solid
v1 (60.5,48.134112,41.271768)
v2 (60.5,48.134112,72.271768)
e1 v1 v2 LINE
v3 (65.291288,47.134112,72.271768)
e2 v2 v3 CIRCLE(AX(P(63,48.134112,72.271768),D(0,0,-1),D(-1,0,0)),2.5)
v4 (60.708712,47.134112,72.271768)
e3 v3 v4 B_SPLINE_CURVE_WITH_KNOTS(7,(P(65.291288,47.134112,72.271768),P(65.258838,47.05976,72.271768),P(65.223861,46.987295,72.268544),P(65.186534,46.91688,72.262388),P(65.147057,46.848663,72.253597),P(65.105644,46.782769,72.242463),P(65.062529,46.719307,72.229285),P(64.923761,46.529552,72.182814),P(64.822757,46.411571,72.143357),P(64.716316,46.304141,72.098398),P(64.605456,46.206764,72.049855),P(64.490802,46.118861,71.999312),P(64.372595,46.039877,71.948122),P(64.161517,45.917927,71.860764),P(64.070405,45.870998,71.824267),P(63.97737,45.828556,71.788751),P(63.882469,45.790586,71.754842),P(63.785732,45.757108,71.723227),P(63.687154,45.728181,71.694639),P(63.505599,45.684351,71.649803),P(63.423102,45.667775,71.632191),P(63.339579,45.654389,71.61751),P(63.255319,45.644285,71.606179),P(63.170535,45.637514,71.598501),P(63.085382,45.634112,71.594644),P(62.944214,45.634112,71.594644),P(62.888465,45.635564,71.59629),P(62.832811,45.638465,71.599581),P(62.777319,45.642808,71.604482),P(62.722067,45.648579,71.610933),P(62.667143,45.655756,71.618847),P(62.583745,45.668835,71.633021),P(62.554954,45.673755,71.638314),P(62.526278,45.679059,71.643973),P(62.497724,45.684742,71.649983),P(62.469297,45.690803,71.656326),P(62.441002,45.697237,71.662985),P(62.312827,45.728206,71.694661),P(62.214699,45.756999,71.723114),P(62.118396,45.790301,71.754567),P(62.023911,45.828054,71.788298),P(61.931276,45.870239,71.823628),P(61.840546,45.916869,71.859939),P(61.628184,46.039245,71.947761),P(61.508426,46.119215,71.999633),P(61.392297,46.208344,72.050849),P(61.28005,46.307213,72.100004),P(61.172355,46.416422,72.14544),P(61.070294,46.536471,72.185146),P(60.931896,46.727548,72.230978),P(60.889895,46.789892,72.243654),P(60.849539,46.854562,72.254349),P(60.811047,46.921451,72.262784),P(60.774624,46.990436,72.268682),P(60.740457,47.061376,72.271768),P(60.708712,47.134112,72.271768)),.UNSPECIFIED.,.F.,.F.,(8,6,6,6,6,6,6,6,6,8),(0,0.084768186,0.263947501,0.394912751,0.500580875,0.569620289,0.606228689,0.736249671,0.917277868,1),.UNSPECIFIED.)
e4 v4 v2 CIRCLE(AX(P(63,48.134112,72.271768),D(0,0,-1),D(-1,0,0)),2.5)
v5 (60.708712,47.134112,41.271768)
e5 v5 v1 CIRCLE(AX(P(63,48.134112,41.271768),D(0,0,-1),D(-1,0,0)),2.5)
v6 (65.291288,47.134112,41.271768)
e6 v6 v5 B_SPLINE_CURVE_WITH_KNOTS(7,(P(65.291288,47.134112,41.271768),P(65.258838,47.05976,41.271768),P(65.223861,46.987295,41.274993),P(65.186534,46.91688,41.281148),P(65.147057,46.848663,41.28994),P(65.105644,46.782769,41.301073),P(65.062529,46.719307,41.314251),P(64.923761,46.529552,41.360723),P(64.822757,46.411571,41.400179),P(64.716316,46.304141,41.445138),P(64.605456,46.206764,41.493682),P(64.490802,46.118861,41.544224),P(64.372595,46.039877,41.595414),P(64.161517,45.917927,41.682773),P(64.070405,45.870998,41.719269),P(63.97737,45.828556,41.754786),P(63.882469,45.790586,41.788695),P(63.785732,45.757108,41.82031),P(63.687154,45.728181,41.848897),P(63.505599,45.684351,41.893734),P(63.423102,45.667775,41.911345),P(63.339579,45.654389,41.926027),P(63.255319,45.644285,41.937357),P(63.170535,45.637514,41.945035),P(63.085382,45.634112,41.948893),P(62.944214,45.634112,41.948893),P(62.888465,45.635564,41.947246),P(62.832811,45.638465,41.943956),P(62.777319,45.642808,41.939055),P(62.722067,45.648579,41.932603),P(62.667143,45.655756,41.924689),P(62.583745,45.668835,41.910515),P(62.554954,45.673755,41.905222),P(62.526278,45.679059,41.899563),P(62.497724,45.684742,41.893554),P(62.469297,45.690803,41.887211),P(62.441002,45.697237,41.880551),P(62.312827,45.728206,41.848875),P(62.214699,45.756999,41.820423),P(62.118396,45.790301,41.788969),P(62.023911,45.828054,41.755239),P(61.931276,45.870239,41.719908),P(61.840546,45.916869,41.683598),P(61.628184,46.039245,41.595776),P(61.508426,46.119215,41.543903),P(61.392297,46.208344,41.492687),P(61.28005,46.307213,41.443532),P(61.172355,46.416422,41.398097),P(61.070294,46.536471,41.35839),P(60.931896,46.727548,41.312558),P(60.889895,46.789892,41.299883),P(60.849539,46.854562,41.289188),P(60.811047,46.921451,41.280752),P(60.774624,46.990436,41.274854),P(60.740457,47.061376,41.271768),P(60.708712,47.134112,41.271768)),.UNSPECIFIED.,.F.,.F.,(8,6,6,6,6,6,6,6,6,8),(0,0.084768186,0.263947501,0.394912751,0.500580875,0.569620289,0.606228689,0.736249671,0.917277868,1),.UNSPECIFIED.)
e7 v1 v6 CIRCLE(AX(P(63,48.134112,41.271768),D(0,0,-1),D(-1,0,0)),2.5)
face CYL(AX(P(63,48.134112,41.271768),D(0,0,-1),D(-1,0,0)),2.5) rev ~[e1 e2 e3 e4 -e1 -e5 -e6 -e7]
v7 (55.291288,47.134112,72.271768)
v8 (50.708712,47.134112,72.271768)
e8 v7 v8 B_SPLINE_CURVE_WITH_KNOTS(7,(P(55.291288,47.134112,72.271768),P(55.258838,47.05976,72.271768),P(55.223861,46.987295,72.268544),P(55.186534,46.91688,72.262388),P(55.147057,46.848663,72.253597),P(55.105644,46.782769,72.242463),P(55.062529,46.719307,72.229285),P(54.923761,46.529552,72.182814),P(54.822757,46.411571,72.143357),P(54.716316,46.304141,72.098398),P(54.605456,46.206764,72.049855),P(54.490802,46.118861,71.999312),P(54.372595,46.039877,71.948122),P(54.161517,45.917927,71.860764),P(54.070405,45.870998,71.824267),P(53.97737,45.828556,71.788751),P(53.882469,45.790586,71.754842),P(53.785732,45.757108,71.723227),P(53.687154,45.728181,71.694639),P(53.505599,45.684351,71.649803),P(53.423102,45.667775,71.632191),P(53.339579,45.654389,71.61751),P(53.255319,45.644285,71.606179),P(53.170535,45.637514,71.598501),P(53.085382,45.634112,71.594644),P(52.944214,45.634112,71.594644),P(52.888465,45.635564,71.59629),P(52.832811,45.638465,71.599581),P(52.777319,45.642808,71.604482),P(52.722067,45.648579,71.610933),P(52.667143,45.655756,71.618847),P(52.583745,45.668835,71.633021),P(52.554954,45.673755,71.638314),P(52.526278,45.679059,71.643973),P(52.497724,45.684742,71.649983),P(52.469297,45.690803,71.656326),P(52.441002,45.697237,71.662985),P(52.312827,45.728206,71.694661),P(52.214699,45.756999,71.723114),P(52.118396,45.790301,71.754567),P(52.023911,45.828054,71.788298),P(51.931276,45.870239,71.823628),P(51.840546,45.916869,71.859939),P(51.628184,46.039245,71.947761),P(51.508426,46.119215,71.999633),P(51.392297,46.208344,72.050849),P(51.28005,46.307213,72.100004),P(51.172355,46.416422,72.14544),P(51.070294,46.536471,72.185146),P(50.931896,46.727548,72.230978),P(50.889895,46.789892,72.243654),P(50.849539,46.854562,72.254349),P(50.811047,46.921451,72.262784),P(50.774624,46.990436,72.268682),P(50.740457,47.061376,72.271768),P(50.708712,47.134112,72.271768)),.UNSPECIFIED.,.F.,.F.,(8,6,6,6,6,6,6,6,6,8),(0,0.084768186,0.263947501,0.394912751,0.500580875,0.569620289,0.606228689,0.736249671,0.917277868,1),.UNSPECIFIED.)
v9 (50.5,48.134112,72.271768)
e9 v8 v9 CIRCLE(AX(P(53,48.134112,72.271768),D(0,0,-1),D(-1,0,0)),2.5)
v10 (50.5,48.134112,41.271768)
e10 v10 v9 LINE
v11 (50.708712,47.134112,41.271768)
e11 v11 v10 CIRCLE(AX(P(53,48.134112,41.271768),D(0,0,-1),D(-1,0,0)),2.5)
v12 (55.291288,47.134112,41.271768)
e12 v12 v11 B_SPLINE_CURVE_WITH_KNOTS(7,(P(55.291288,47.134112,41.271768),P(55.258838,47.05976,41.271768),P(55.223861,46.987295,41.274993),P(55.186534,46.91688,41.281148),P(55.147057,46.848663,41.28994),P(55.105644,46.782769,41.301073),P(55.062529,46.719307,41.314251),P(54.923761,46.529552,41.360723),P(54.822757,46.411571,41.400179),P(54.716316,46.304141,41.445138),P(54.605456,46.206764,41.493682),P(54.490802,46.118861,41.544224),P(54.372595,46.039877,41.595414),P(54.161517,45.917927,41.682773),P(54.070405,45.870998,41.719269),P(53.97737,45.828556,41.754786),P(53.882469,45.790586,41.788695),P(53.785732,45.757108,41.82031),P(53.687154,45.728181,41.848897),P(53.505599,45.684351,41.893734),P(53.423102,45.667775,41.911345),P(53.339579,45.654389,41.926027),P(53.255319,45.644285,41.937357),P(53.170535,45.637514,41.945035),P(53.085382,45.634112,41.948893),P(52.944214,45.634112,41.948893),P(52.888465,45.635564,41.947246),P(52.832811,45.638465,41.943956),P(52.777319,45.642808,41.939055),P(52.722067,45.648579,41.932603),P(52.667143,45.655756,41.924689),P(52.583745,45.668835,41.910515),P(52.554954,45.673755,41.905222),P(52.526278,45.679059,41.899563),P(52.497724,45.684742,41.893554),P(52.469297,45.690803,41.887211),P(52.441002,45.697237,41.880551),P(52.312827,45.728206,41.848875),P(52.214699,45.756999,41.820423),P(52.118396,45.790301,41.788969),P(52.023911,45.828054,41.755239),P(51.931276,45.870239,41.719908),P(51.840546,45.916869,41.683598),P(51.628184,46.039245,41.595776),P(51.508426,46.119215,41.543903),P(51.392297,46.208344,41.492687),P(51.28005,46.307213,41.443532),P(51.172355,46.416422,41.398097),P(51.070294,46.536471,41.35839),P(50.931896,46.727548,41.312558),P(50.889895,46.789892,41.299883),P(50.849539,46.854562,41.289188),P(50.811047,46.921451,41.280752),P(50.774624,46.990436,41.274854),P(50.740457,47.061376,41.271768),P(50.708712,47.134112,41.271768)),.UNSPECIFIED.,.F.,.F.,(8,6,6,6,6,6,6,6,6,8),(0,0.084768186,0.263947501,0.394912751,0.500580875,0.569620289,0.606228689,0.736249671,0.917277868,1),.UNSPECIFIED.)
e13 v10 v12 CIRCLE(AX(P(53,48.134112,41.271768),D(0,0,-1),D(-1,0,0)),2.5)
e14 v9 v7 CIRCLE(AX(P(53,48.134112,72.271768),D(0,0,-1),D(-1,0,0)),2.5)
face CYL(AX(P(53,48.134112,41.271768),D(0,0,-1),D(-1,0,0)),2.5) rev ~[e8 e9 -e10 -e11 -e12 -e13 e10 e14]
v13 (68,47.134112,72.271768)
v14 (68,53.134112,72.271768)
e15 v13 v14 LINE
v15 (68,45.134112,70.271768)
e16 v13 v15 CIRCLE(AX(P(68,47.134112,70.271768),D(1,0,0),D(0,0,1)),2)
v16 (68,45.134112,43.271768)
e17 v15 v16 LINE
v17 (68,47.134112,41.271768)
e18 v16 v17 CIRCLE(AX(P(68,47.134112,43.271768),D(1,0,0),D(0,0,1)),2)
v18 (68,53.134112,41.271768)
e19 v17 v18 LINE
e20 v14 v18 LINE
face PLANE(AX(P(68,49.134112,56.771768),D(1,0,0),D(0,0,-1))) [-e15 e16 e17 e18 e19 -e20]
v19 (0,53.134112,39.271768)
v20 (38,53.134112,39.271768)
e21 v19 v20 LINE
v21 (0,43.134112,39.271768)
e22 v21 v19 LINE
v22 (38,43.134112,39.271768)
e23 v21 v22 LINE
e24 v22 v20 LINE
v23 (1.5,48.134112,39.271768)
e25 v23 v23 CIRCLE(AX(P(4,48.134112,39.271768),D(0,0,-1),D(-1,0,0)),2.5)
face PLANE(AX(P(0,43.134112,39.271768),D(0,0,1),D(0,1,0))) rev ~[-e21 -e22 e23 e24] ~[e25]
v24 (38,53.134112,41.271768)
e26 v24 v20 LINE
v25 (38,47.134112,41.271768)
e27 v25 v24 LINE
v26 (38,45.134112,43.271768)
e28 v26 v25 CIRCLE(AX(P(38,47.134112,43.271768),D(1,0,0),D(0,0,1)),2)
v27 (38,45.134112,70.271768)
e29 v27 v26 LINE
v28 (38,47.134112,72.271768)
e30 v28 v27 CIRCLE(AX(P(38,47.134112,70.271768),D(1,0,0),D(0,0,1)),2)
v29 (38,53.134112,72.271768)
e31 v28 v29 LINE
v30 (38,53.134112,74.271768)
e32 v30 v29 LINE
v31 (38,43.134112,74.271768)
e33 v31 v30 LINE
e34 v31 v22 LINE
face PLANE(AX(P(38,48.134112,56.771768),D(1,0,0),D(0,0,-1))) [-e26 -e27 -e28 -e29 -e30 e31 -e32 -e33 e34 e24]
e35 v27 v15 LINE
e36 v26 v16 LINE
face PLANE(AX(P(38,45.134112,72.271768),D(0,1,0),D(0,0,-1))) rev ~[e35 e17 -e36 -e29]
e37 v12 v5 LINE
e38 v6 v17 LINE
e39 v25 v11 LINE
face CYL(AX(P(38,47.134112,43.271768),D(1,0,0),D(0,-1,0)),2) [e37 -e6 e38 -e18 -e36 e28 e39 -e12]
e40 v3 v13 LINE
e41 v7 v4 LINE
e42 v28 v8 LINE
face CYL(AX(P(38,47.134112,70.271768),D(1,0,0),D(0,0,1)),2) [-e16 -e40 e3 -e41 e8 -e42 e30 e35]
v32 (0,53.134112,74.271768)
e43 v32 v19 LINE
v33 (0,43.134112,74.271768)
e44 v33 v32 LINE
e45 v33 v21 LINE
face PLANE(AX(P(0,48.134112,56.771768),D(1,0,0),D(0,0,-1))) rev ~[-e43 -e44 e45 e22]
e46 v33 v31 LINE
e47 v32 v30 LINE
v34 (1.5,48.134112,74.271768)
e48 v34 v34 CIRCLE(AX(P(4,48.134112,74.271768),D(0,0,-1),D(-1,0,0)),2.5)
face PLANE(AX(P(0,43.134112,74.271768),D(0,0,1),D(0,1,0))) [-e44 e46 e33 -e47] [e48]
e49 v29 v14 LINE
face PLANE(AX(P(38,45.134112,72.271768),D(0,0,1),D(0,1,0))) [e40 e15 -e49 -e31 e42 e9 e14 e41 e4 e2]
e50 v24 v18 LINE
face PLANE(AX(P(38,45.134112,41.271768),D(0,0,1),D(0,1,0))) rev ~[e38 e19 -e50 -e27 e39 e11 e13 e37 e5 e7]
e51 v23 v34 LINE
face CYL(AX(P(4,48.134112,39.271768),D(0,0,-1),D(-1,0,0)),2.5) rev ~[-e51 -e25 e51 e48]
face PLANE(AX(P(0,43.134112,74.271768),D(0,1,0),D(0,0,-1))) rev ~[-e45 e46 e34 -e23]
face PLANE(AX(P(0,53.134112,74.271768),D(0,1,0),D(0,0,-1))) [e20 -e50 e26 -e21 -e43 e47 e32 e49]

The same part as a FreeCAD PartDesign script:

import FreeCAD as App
import Part
import Sketcher
Q = App.Units.Quantity


def edges_at(feature, points):
    """Names of the edges that pass closest to the given points."""
    edges = feature.Shape.Edges
    near = lambda p: min(range(len(edges)), key=lambda i: edges[i].distToShape(Part.Vertex(*p))[0])
    return sorted({f"Edge{near(p) + 1}" for p in points})


def add_polygon(sketch, points):
    """Adds a closed chain of lines whose ends are joined by coincident constraints."""
    first, n = sketch.GeometryCount, len(points)
    for a, b in zip(points, points[1:] + points[:1]):
        sketch.addGeometry(Part.LineSegment(App.Vector(*a, 0), App.Vector(*b, 0)), False)
    for i in range(n):
        sketch.addConstraint(Sketcher.Constraint("Coincident", first + i, 2, first + (i + 1) % n, 1))

doc = App.newDocument("Part")
body = doc.addObject("PartDesign::Body", "Body")

# Sketch on YZ plane
sketch1 = body.newObject("Sketcher::SketchObject", "Sketch")
sketch1.AttachmentSupport = (doc.getObject("YZ_Plane"), [""])
sketch1.MapMode = "FlatFace"
add_polygon(sketch1, [(53, 74), (43, 74), (43, 39), (53, 39)])  # lines 0-3
sketch1.addConstraint(Sketcher.Constraint("Horizontal", 0))
sketch1.addConstraint(Sketcher.Constraint("Vertical", 1))
sketch1.addConstraint(Sketcher.Constraint("Horizontal", 2))
sketch1.addConstraint(Sketcher.Constraint("Vertical", 3))
sketch1.addConstraint(Sketcher.Constraint("DistanceX", 0, 2, 0, 1, Q("10 mm")))
sketch1.addConstraint(Sketcher.Constraint("DistanceY", 1, 2, 1, 1, Q("35 mm")))
sketch1.addConstraint(Sketcher.Constraint("DistanceX", -1, 1, 0, 2, Q("43.134112 mm")))
sketch1.addConstraint(Sketcher.Constraint("DistanceY", -1, 1, 0, 2, Q("74.271768 mm")))
pad1 = body.newObject("PartDesign::Pad", "Pad")
pad1.Profile = sketch1
pad1.Length = 38

# Sketch on YZ plane
sketch2 = body.newObject("Sketcher::SketchObject", "Sketch001")
sketch2.AttachmentSupport = (doc.getObject("YZ_Plane"), [""])
sketch2.MapMode = "FlatFace"
sketch2.AttachmentOffset = App.Placement(App.Vector(0, 0, 38), App.Rotation())
add_polygon(sketch2, [(53, 72), (45, 72), (45, 41), (53, 41)])  # lines 0-3
sketch2.addConstraint(Sketcher.Constraint("Horizontal", 0))
sketch2.addConstraint(Sketcher.Constraint("Vertical", 1))
sketch2.addConstraint(Sketcher.Constraint("Horizontal", 2))
sketch2.addConstraint(Sketcher.Constraint("Vertical", 3))
sketch2.addConstraint(Sketcher.Constraint("DistanceX", 0, 2, 0, 1, Q("8 mm")))
sketch2.addConstraint(Sketcher.Constraint("DistanceY", 1, 2, 1, 1, Q("31 mm")))
sketch2.addConstraint(Sketcher.Constraint("DistanceX", -1, 1, 0, 2, Q("45.134112 mm")))
sketch2.addConstraint(Sketcher.Constraint("DistanceY", -1, 1, 0, 2, Q("72.271768 mm")))
pad2 = body.newObject("PartDesign::Pad", "Pad001")
pad2.Profile = sketch2
pad2.Length = 30
doc.recompute()

fillet = body.newObject("PartDesign::Fillet", "Fillet")
fillet.Base = (pad2, edges_at(pad2, [(53, 45.134, 72.272), (53, 45.134, 41.272)]))
fillet.Radius = 2

# Sketch on XY plane
sketch3 = body.newObject("Sketcher::SketchObject", "Sketch002")
sketch3.AttachmentSupport = (doc.getObject("XY_Plane"), [""])
sketch3.MapMode = "FlatFace"
sketch3.AttachmentOffset = App.Placement(App.Vector(0, 0, 41.271768), App.Rotation())
sketch3.addGeometry(Part.Circle(App.Vector(63, 48.1, 0), App.Vector(0, 0, 1), 2.5), False)
sketch3.addGeometry(Part.Circle(App.Vector(53, 48.1, 0), App.Vector(0, 0, 1), 2.5), False)
sketch3.addConstraint(Sketcher.Constraint("Equal", 0, 1))
sketch3.addConstraint(Sketcher.Constraint("Horizontal", 0, 3, 1, 3))
sketch3.addConstraint(Sketcher.Constraint("Diameter", 0, Q("5 mm")))
sketch3.addConstraint(Sketcher.Constraint("DistanceX", -1, 1, 0, 3, Q("63 mm")))
sketch3.addConstraint(Sketcher.Constraint("DistanceX", -1, 1, 1, 3, Q("53 mm")))
sketch3.addConstraint(Sketcher.Constraint("DistanceY", -1, 1, 0, 3, Q("48.134112 mm")))
pocket1 = body.newObject("PartDesign::Pocket", "Pocket")
pocket1.Profile = sketch3
pocket1.Type = "ThroughAll"
pocket1.Reversed = True

# Sketch on XY plane
sketch4 = body.newObject("Sketcher::SketchObject", "Sketch003")
sketch4.AttachmentSupport = (doc.getObject("XY_Plane"), [""])
sketch4.MapMode = "FlatFace"
sketch4.AttachmentOffset = App.Placement(App.Vector(0, 0, 39.271768), App.Rotation())
sketch4.addGeometry(Part.Circle(App.Vector(4, 48.1, 0), App.Vector(0, 0, 1), 2.5), False)
sketch4.addConstraint(Sketcher.Constraint("Diameter", 0, Q("5 mm")))
sketch4.addConstraint(Sketcher.Constraint("DistanceX", -1, 1, 0, 3, Q("4 mm")))
sketch4.addConstraint(Sketcher.Constraint("DistanceY", -1, 1, 0, 3, Q("48.134112 mm")))
pocket2 = body.newObject("PartDesign::Pocket", "Pocket001")
pocket2.Profile = sketch4
pocket2.Type = "ThroughAll"
pocket2.Reversed = True

doc.recompute()
